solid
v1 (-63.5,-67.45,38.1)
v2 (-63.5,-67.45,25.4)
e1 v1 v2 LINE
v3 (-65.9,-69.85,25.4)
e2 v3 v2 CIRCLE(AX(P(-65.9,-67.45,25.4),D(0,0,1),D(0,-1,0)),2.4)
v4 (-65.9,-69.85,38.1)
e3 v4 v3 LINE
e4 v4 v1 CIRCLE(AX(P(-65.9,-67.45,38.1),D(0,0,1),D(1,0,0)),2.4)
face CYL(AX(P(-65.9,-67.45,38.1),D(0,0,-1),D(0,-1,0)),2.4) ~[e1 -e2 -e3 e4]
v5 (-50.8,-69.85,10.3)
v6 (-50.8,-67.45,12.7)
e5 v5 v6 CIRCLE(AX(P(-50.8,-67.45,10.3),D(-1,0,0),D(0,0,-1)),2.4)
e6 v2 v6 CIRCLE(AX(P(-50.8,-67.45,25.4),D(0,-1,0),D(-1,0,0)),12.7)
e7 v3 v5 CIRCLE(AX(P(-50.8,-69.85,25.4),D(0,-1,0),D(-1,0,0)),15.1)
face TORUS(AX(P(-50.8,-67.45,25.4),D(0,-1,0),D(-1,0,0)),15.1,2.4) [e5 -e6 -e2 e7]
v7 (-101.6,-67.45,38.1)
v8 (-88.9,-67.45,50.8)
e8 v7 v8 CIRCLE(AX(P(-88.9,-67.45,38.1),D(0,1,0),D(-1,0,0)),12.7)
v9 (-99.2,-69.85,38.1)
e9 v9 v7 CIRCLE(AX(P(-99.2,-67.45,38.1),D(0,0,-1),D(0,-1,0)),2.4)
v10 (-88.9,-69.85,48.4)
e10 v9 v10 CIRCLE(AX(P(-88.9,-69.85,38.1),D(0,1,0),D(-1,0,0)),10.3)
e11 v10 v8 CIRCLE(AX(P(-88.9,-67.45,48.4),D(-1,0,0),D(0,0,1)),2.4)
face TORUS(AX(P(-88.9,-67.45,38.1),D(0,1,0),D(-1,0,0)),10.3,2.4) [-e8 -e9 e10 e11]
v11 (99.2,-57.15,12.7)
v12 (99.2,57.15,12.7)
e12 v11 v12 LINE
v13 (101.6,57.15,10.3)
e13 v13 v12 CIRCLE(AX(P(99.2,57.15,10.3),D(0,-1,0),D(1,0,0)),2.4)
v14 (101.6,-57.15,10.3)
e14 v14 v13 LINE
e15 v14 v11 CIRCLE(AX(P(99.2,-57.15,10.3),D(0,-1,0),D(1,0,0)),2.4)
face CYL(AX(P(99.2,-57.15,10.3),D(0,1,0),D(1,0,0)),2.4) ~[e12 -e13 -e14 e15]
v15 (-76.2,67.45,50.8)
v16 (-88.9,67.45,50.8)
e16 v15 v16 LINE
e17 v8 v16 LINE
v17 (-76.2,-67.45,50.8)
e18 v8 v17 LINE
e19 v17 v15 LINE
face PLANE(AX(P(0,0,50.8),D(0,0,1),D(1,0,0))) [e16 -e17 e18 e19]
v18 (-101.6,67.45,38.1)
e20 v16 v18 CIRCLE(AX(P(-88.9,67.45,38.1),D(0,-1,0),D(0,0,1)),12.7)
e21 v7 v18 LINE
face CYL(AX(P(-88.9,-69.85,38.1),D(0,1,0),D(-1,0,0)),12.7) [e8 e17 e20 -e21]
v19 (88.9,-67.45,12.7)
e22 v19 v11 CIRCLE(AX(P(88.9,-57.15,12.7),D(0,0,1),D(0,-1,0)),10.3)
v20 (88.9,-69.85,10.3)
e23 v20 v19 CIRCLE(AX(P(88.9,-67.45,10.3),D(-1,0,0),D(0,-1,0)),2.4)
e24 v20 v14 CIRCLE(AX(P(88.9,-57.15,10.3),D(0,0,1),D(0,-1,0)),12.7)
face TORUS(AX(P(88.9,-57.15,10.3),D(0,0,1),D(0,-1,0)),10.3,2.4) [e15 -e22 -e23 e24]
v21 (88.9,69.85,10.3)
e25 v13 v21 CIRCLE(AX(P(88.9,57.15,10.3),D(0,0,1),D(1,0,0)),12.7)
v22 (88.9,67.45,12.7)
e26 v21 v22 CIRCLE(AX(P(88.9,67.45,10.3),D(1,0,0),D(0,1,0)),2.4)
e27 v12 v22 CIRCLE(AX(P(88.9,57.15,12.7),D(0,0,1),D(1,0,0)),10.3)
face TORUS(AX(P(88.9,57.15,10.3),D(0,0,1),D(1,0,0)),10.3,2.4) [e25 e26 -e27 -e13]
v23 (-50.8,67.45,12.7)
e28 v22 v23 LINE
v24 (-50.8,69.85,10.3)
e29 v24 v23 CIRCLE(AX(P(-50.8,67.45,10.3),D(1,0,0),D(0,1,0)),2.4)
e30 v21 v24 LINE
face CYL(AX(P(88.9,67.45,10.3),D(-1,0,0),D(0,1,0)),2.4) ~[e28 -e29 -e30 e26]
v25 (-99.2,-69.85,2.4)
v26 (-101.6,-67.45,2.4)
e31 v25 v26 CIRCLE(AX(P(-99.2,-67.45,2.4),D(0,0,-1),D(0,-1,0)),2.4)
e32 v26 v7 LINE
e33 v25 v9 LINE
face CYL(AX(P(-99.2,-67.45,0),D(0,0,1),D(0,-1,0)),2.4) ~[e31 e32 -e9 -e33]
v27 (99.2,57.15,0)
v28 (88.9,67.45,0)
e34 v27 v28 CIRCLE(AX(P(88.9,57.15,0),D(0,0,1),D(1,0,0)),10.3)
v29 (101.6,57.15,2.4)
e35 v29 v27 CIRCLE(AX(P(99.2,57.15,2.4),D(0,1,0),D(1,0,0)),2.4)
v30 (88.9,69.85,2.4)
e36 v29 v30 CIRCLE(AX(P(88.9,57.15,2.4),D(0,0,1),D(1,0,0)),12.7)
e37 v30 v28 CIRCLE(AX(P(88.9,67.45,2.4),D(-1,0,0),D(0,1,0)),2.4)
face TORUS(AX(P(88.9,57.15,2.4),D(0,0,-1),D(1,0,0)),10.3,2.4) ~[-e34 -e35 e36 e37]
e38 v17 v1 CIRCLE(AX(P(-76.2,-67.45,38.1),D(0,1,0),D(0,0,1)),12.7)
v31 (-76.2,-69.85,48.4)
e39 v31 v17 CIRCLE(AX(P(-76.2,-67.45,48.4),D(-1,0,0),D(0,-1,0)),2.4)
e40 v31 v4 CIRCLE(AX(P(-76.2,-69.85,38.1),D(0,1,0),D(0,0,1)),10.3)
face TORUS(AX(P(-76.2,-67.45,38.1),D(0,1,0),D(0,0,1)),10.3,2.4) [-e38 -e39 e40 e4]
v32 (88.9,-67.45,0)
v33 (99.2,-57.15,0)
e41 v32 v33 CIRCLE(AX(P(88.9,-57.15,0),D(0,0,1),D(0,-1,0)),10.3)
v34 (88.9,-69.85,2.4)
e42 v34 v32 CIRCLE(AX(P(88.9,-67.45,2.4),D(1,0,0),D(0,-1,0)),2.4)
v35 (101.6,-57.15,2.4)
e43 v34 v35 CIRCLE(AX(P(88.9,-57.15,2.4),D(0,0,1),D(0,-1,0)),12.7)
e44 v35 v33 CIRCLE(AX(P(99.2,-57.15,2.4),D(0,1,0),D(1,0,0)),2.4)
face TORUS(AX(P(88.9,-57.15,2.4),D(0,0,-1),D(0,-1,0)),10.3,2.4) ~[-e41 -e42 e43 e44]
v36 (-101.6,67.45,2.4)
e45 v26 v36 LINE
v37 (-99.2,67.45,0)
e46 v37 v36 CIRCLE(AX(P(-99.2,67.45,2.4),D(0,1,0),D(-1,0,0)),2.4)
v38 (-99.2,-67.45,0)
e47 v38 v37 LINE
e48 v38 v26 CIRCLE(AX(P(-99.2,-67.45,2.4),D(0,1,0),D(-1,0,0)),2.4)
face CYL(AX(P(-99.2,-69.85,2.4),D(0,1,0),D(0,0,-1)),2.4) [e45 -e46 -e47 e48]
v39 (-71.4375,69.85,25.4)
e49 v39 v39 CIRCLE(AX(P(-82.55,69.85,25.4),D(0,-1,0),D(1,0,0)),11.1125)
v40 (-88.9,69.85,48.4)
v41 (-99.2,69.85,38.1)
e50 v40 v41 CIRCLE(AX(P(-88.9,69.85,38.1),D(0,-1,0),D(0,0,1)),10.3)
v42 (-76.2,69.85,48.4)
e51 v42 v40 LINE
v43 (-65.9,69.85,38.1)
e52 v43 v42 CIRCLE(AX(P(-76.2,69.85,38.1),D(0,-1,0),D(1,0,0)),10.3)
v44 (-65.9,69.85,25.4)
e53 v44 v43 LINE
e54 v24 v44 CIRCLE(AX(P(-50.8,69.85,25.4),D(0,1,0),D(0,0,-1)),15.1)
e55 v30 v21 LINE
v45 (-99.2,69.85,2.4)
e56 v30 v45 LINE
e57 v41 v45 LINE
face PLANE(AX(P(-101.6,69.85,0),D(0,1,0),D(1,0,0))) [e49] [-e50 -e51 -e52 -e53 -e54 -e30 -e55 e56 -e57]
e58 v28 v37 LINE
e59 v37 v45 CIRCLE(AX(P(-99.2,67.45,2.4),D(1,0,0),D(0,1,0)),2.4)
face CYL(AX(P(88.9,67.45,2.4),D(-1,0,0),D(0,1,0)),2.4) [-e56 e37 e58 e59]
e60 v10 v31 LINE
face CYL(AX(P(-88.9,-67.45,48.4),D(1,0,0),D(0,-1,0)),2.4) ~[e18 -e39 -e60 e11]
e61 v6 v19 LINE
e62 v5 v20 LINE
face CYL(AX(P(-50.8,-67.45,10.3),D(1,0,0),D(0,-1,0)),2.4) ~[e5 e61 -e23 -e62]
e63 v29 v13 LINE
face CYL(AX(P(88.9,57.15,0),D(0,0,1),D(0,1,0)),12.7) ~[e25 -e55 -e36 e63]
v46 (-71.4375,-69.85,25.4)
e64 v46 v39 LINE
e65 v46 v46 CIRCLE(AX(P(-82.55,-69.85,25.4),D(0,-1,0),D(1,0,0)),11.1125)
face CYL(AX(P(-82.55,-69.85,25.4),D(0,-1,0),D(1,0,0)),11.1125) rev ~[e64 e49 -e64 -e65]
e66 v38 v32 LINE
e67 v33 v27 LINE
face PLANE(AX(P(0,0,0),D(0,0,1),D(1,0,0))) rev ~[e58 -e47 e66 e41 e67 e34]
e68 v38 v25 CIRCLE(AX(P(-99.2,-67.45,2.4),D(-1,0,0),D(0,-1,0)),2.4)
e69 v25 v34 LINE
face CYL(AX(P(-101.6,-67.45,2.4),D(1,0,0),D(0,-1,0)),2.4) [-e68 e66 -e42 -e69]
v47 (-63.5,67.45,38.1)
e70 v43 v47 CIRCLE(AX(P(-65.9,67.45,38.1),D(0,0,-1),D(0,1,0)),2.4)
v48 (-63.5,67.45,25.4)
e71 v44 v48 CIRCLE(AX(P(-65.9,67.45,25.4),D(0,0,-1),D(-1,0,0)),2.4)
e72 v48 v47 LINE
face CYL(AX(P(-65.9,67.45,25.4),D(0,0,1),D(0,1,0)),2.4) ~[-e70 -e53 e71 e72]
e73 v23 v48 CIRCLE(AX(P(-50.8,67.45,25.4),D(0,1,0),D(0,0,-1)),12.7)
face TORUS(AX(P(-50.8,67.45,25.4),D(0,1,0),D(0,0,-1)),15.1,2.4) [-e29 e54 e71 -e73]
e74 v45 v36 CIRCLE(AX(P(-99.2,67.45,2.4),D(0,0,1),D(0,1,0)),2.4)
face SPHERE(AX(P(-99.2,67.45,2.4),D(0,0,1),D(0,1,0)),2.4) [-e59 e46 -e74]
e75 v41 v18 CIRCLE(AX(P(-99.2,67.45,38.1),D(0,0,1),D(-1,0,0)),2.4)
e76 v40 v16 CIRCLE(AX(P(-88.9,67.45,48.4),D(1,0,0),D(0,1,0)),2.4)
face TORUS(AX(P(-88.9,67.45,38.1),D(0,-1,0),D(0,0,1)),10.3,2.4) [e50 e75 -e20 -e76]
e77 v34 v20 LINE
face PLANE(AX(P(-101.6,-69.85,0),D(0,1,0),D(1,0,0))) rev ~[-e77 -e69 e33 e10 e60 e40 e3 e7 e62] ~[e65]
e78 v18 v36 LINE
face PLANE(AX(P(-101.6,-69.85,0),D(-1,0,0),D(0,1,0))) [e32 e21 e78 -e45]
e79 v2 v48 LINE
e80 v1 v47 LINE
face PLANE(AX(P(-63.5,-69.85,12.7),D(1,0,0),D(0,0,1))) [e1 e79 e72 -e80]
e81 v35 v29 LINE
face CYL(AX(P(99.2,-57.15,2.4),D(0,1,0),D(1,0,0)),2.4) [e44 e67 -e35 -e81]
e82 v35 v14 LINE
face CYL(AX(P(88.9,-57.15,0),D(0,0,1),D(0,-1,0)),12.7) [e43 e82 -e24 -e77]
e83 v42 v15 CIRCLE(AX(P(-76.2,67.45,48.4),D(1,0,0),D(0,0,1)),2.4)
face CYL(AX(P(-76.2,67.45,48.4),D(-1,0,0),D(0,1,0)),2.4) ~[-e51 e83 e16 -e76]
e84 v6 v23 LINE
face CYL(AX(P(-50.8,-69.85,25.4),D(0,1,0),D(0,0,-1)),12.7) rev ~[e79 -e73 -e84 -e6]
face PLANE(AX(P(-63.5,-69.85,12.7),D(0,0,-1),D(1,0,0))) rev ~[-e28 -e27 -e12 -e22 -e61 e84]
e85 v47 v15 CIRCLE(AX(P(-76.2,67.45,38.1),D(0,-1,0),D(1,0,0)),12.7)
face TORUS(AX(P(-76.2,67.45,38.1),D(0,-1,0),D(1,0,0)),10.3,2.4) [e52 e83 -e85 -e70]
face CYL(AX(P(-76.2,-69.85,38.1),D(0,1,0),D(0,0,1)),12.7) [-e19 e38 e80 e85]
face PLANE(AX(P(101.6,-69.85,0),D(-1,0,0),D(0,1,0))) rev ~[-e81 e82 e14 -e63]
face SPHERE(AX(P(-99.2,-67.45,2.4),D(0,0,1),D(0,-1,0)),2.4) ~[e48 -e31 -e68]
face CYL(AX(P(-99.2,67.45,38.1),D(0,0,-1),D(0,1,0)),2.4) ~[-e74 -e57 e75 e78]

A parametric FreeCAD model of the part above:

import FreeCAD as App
import Part
import Sketcher
Q = App.Units.Quantity


def edges_at(feature, points):
    """Names of the edges that pass closest to the given points."""
    edges = feature.Shape.Edges
    near = lambda p: min(range(len(edges)), key=lambda i: edges[i].distToShape(Part.Vertex(*p))[0])
    return sorted({f"Edge{near(p) + 1}" for p in points})

doc = App.newDocument("Part")
body = doc.addObject("PartDesign::Body", "Body")

# Sketch on XY plane
sketch1 = body.newObject("Sketcher::SketchObject", "Sketch")
sketch1.AttachmentSupport = (doc.getObject("XY_Plane"), [""])
sketch1.MapMode = "FlatFace"
sketch1.addGeometry(Part.LineSegment(App.Vector(-102, 70, 0), App.Vector(-102, -70, 0)), False)
sketch1.addGeometry(Part.LineSegment(App.Vector(-102, -70, 0), App.Vector(102, -70, 0)), False)
sketch1.addGeometry(Part.LineSegment(App.Vector(102, -70, 0), App.Vector(102, 70, 0)), False)
sketch1.addGeometry(Part.LineSegment(App.Vector(102, 70, 0), App.Vector(-102, 70, 0)), False)
sketch1.addConstraint(Sketcher.Constraint("Coincident", 0, 2, 1, 1))
sketch1.addConstraint(Sketcher.Constraint("Coincident", 1, 2, 2, 1))
sketch1.addConstraint(Sketcher.Constraint("Coincident", 2, 2, 3, 1))
sketch1.addConstraint(Sketcher.Constraint("Coincident", 3, 2, 0, 1))
sketch1.addConstraint(Sketcher.Constraint("Vertical", 0))
sketch1.addConstraint(Sketcher.Constraint("Horizontal", 1))
sketch1.addConstraint(Sketcher.Constraint("Vertical", 2))
sketch1.addConstraint(Sketcher.Constraint("Horizontal", 3))
sketch1.addConstraint(Sketcher.Constraint("Symmetric", 0, 2, 2, 2, -1, 1))
sketch1.addConstraint(Sketcher.Constraint("DistanceX", 1, 1, 1, 2, Q("8 in")))
sketch1.addConstraint(Sketcher.Constraint("DistanceY", 0, 2, 0, 1, Q("5.5 in")))
pad1 = body.newObject("PartDesign::Pad", "Pad")
pad1.Profile = sketch1
pad1.Length = Q("2 in")

# Sketch on XZ plane
sketch2 = body.newObject("Sketcher::SketchObject", "Sketch001")
sketch2.AttachmentSupport = (doc.getObject("XZ_Plane"), [""])
sketch2.MapMode = "FlatFace"
sketch2.AttachmentOffset = App.Placement(App.Vector(0, 0, 2.75 * 25.4), App.Rotation())
sketch2.addGeometry(Part.LineSegment(App.Vector(-64, 51, 0), App.Vector(-64, 13, 0)), False)
sketch2.addGeometry(Part.LineSegment(App.Vector(-64, 13, 0), App.Vector(102, 13, 0)), False)
sketch2.addGeometry(Part.LineSegment(App.Vector(102, 13, 0), App.Vector(102, 51, 0)), False)
sketch2.addGeometry(Part.LineSegment(App.Vector(102, 51, 0), App.Vector(-64, 51, 0)), False)
sketch2.addConstraint(Sketcher.Constraint("Coincident", 0, 2, 1, 1))
sketch2.addConstraint(Sketcher.Constraint("Coincident", 1, 2, 2, 1))
sketch2.addConstraint(Sketcher.Constraint("Coincident", 2, 2, 3, 1))
sketch2.addConstraint(Sketcher.Constraint("Coincident", 3, 2, 0, 1))
sketch2.addConstraint(Sketcher.Constraint("Vertical", 0))
sketch2.addConstraint(Sketcher.Constraint("Horizontal", 1))
sketch2.addConstraint(Sketcher.Constraint("Vertical", 2))
sketch2.addConstraint(Sketcher.Constraint("Horizontal", 3))
sketch2.addConstraint(Sketcher.Constraint("DistanceX", 1, 1, 1, 2, Q("6.5 in")))
sketch2.addConstraint(Sketcher.Constraint("DistanceY", 0, 2, 0, 1, Q("1.5 in")))
sketch2.addConstraint(Sketcher.Constraint("DistanceX", -1, 1, 1, 2, Q("4 in")))
sketch2.addConstraint(Sketcher.Constraint("DistanceY", -1, 1, 2, 2, Q("2 in")))
pocket1 = body.newObject("PartDesign::Pocket", "Pocket")
pocket1.Profile = sketch2
pocket1.Type = "ThroughAll"

# Sketch on XZ plane
sketch3 = body.newObject("Sketcher::SketchObject", "Sketch002")
sketch3.AttachmentSupport = (doc.getObject("XZ_Plane"), [""])
sketch3.MapMode = "FlatFace"
sketch3.AttachmentOffset = App.Placement(App.Vector(0, 0, 2.75 * 25.4), App.Rotation())
sketch3.addGeometry(Part.Circle(App.Vector(-83, 25, 0), App.Vector(0, 0, 1), 11), False)
sketch3.addConstraint(Sketcher.Constraint("Diameter", 0, Q("0.875 in")))
sketch3.addConstraint(Sketcher.Constraint("DistanceY", -1, 1, 0, 3, Q("1 in")))
sketch3.addConstraint(Sketcher.Constraint("DistanceX", 0, 3, -1, 1, Q("3.25 in")))
pocket2 = body.newObject("PartDesign::Pocket", "Pocket001")
pocket2.Profile = sketch3
pocket2.Type = "ThroughAll"
doc.recompute()

fillet = body.newObject("PartDesign::Fillet", "Fillet")
fillet.Base = (pocket2, edges_at(pocket2, [(-63.5, 0, 12.7), (-63.5, 0, 50.8), (-101.6, 0, 50.8)]))
fillet.Radius = Q("0.5 in")
doc.recompute()

fillet2 = body.newObject("PartDesign::Fillet", "Fillet001")
fillet2.Base = (fillet, edges_at(fillet, [(101.6, -69.85, 6.35), (101.6, 69.85, 6.35)]))
fillet2.Radius = Q("0.5 in")
doc.recompute()

fillet3 = body.newObject("PartDesign::Fillet", "Fillet002")
fillet3.Base = (fillet2, edges_at(fillet2, [
    (19.05, -69.85, 12.7),
    (-59.78, -69.85, 16.42),
    (-63.5, -69.85, 31.75),
    (-67.22, -69.85, 47.08),
    (-82.55, -69.85, 50.8),
    (-97.88, -69.85, 47.08),
    (-101.6, -69.85, 19.05),
    (97.88, -66.13, 12.7),
    (101.6, 0, 12.7),
    (97.88, 66.13, 12.7),
    (19.05, 69.85, 12.7),
    (-59.78, 69.85, 16.42),
    (-63.5, 69.85, 31.75),
    (-67.22, 69.85, 47.08),
    (-82.55, 69.85, 50.8),
    (-97.88, 69.85, 47.08),
    (-101.6, 69.85, 19.05),
    (-6.35, -69.85, 0),
    (97.88, -66.13, 0),
    (101.6, 0, 0),
    (97.88, 66.13, 0),
    (-6.35, 69.85, 0),
    (-101.6, 0, 0),
]))
fillet3.Radius = 2.4

doc.recompute()
